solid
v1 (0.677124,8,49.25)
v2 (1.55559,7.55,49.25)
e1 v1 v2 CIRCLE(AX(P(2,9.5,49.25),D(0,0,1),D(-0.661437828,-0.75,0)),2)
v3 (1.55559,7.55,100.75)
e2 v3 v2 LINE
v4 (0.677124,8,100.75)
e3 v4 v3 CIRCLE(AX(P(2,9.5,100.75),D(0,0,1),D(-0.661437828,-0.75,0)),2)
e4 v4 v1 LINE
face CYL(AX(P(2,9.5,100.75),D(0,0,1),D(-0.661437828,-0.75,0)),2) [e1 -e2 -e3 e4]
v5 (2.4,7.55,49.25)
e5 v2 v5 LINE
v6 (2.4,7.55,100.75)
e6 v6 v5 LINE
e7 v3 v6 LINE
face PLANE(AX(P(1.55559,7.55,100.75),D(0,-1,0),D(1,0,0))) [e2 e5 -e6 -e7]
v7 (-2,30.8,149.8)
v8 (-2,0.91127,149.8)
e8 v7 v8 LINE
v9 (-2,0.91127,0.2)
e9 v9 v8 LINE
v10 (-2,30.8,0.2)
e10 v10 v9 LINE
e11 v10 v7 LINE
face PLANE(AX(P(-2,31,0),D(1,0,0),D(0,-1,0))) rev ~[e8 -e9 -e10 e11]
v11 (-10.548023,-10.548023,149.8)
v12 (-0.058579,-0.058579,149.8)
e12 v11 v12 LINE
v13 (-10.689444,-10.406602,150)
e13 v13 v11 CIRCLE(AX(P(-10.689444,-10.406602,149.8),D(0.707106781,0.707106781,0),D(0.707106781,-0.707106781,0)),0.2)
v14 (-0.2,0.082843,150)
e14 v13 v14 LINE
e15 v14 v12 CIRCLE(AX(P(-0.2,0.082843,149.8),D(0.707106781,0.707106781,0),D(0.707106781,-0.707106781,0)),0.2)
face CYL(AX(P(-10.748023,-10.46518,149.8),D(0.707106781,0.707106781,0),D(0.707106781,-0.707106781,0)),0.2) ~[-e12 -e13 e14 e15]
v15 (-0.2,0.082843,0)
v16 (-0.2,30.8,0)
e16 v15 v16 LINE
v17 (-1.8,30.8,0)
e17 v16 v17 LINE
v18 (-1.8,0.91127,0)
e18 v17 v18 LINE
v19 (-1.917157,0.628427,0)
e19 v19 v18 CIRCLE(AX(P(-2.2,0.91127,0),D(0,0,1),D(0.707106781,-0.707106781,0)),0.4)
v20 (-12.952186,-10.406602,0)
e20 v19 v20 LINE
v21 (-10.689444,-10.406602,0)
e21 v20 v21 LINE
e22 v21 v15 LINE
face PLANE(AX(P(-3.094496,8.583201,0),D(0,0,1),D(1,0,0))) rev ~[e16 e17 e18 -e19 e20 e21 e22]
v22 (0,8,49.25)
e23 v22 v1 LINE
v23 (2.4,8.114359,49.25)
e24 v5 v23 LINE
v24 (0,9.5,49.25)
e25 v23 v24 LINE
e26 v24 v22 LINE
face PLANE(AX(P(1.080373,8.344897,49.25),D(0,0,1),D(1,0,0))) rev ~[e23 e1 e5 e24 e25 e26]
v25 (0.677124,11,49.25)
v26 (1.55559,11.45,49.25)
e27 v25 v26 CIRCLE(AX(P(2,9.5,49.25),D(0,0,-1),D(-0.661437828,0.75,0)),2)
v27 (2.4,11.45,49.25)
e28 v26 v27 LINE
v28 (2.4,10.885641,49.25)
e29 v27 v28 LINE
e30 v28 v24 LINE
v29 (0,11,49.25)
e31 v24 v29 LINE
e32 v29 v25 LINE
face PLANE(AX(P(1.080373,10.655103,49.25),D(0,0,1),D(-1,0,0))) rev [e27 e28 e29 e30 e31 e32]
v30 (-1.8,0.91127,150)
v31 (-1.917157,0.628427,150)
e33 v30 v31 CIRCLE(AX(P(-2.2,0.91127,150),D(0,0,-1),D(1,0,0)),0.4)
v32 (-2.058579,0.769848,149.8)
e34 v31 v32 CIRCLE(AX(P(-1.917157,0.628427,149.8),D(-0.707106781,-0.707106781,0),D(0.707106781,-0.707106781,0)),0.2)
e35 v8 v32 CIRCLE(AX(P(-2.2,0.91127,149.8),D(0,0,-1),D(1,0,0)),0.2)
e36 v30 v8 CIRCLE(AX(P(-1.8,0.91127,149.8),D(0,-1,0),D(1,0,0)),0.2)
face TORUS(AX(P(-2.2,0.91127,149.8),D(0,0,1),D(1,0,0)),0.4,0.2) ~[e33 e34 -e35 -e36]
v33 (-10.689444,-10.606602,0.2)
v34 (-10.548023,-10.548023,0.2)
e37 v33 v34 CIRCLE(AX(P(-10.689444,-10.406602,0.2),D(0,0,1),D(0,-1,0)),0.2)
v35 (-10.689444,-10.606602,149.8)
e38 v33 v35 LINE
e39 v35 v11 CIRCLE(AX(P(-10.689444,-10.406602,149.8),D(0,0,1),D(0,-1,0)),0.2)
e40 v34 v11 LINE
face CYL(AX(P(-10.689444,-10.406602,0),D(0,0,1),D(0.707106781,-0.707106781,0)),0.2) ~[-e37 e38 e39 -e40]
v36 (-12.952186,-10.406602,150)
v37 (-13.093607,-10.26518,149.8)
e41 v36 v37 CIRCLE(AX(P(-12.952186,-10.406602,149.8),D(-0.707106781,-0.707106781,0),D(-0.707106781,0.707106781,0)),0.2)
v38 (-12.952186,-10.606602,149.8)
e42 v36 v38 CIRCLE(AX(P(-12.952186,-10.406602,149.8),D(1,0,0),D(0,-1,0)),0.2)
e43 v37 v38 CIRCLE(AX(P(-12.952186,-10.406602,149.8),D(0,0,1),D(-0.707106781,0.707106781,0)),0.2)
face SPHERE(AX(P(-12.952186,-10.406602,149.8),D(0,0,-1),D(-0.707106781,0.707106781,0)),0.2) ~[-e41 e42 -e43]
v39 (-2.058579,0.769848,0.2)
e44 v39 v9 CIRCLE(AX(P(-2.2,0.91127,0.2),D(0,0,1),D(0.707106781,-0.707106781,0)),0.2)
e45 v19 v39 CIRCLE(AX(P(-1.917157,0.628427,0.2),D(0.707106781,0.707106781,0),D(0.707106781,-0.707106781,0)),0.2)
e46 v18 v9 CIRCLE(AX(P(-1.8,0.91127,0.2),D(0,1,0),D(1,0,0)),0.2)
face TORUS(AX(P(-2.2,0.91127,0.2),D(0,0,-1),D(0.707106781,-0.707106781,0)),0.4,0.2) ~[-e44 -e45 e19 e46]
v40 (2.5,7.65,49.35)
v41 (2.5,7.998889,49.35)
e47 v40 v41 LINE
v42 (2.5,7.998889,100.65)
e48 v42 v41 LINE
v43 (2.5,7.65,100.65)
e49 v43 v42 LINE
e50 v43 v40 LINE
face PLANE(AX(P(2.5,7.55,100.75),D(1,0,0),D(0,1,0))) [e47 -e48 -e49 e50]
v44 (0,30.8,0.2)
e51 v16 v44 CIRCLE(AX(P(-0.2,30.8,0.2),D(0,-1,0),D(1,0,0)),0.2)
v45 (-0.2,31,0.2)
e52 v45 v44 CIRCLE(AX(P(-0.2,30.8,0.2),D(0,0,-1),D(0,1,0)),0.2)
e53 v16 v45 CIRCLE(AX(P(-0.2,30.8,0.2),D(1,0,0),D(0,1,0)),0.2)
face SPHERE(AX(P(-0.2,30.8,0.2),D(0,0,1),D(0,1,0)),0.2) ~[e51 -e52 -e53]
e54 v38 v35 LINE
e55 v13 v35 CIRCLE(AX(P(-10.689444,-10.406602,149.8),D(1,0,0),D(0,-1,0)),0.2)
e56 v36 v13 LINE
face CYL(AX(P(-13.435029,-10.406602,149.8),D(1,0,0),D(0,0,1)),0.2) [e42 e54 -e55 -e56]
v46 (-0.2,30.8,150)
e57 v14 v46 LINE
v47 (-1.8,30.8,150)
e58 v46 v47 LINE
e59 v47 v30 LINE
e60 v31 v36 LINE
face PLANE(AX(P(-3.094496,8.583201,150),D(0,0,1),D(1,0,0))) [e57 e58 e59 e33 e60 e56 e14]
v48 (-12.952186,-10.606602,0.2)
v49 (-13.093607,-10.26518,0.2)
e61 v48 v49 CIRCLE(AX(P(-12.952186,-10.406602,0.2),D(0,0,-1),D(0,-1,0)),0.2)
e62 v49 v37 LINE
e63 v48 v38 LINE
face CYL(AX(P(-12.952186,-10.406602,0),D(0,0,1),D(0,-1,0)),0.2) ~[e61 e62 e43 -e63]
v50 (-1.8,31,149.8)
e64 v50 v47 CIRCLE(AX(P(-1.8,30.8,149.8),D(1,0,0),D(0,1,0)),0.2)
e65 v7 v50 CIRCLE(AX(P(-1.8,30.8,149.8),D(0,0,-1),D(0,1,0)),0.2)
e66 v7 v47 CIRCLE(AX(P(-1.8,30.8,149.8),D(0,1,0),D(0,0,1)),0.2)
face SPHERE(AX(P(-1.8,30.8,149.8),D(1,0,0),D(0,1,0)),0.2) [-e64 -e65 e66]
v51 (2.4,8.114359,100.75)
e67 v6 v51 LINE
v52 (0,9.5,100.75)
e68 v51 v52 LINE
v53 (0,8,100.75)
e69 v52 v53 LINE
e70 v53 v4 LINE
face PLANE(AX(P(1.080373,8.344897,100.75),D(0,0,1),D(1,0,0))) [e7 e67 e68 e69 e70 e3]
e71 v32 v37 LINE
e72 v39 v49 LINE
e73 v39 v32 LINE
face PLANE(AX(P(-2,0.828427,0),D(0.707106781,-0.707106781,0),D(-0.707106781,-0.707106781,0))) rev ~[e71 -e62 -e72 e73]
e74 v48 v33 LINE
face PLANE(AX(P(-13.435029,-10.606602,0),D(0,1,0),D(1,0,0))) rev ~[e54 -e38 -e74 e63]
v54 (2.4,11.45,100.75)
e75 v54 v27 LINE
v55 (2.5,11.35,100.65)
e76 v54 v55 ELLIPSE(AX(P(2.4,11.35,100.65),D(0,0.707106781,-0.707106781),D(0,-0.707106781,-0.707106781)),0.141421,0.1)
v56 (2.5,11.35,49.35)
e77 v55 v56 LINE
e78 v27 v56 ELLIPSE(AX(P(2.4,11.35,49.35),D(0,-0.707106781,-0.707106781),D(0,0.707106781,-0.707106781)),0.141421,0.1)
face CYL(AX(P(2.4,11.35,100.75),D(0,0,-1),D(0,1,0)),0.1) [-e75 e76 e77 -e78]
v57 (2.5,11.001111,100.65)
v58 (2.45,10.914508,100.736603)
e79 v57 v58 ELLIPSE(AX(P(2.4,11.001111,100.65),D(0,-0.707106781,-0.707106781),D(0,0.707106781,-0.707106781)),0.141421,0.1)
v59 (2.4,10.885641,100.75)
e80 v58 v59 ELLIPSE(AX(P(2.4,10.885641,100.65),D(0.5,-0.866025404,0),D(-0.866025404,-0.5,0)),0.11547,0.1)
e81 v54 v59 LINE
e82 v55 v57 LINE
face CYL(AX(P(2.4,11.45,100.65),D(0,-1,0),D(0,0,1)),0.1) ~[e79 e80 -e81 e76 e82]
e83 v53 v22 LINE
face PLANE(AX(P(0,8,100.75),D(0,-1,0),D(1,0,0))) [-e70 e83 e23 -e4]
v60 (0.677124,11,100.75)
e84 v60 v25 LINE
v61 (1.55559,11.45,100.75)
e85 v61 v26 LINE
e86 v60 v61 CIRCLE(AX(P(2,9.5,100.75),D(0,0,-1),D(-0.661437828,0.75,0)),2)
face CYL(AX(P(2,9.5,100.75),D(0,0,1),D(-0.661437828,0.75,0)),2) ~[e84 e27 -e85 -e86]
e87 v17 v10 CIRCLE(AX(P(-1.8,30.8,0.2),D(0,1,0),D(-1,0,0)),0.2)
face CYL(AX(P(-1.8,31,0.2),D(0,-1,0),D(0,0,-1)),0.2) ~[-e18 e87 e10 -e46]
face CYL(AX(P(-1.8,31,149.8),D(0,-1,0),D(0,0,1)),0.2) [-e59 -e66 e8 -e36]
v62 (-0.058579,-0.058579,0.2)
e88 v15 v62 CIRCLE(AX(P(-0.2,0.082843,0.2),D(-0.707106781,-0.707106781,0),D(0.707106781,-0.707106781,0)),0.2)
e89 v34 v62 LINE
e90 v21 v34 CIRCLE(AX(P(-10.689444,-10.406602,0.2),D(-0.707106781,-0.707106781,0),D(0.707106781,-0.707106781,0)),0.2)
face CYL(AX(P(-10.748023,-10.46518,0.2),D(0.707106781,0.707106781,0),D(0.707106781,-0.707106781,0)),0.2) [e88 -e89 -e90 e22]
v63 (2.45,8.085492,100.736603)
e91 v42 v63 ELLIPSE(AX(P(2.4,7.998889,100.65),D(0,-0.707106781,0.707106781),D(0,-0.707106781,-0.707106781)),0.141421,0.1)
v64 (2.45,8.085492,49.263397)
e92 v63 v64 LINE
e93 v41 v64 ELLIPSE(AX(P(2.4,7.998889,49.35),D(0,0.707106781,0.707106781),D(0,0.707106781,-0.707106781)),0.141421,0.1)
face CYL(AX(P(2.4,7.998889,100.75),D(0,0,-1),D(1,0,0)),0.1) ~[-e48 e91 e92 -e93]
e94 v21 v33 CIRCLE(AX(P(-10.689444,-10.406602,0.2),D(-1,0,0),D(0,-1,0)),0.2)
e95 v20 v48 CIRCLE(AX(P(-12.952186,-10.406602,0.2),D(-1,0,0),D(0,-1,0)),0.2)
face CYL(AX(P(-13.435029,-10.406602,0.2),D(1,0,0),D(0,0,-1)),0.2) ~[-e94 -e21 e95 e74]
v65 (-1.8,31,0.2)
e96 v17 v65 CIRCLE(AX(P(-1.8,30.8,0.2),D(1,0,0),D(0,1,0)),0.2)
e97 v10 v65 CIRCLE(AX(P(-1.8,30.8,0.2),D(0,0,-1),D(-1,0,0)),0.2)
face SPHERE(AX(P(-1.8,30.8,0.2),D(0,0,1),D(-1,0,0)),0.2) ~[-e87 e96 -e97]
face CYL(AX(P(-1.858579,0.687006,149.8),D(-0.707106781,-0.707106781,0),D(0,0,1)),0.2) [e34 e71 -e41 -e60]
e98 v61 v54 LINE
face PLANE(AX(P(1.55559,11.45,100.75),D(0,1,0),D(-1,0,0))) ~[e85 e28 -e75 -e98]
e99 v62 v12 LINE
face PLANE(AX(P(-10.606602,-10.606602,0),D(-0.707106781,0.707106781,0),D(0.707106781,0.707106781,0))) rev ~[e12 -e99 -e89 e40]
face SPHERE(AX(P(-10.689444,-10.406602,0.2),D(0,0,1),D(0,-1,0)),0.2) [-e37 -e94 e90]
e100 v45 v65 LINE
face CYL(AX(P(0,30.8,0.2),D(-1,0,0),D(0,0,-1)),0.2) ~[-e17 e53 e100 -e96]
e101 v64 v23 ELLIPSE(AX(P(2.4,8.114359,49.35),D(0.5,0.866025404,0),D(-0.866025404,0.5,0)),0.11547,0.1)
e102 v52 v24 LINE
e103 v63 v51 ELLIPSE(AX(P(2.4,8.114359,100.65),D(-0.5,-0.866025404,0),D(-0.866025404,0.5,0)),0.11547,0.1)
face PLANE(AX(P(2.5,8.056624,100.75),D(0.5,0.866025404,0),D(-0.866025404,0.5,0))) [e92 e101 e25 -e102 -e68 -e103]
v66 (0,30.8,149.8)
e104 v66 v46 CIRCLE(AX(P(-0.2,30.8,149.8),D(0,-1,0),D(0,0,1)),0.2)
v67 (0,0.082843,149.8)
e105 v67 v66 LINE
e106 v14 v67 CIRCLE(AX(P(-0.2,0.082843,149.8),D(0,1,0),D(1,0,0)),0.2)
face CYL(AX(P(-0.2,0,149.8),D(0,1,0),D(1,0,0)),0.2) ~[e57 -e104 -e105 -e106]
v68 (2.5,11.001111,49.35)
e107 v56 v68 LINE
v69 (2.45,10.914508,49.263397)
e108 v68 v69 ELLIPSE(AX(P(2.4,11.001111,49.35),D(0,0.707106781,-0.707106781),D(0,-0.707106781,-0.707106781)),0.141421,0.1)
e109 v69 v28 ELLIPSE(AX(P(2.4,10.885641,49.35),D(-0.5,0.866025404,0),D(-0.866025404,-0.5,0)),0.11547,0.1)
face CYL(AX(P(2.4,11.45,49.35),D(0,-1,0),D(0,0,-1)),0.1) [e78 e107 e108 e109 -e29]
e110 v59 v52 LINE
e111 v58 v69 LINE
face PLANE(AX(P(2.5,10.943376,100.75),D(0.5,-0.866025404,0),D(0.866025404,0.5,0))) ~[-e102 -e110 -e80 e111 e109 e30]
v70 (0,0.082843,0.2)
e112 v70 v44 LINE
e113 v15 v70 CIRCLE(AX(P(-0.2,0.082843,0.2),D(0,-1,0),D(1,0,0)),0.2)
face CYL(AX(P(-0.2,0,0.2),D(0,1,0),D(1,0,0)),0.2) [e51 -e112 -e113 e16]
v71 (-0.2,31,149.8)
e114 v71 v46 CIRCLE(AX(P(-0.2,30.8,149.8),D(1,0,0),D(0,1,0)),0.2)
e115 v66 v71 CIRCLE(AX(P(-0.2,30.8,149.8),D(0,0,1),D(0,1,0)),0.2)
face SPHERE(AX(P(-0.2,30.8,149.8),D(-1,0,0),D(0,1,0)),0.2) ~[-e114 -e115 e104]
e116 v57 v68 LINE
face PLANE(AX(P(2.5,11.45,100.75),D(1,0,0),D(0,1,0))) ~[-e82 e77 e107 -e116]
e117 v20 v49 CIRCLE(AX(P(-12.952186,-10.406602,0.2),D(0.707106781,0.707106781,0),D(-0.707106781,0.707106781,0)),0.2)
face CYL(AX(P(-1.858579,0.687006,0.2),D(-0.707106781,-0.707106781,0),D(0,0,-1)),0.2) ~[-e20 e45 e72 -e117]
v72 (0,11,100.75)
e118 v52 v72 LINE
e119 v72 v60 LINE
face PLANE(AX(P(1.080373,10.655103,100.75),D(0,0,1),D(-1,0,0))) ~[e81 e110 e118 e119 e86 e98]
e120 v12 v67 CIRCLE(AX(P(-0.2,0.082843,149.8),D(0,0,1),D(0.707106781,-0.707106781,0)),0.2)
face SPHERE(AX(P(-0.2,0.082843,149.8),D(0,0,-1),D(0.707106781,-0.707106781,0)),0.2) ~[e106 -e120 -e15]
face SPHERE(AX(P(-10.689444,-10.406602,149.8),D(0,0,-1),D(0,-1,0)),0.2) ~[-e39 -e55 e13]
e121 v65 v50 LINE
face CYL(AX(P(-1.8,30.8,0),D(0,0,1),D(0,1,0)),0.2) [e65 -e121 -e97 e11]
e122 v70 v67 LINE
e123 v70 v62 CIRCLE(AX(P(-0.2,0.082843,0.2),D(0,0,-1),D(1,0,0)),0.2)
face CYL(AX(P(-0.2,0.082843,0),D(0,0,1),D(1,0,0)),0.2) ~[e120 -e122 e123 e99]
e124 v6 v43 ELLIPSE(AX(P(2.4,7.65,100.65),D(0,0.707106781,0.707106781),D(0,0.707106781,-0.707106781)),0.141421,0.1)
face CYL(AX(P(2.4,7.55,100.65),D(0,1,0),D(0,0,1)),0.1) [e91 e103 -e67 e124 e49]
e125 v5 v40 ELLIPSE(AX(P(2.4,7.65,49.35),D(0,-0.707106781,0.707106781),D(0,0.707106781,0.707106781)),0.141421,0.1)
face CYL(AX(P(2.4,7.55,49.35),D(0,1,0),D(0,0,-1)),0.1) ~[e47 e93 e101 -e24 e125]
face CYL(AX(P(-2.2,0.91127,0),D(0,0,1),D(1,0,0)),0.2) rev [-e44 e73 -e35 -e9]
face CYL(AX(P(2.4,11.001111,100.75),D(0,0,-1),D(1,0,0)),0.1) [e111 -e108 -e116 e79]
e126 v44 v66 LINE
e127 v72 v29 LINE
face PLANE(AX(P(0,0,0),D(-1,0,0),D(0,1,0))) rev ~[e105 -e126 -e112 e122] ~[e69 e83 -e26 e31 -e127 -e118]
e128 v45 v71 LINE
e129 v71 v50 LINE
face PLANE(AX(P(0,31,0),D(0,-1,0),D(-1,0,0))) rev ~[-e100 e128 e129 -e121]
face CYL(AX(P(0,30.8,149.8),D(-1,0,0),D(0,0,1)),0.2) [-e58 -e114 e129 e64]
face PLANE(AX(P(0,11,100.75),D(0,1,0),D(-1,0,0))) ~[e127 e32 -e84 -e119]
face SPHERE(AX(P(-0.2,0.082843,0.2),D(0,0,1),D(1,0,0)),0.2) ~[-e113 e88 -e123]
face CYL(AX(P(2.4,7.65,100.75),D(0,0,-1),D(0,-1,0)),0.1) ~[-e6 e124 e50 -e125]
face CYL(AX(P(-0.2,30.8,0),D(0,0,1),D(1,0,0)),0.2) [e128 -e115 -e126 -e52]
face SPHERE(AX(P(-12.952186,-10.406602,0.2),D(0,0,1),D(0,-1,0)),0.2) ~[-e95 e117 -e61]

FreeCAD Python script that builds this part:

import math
import FreeCAD as App
import Part
import Sketcher
from FreeCAD import Vector
Q = App.Units.Quantity


def edges_at(feature, points):
    """Names of the edges that pass closest to the given points."""
    edges = feature.Shape.Edges
    near = lambda p: min(range(len(edges)), key=lambda i: edges[i].distToShape(Part.Vertex(*p))[0])
    return sorted({f"Edge{near(p) + 1}" for p in points})


def add_polygon(sketch, points):
    """Adds a closed chain of lines whose ends are joined by coincident constraints."""
    first, n = sketch.GeometryCount, len(points)
    for a, b in zip(points, points[1:] + points[:1]):
        sketch.addGeometry(Part.LineSegment(App.Vector(*a, 0), App.Vector(*b, 0)), False)
    for i in range(n):
        sketch.addConstraint(Sketcher.Constraint("Coincident", first + i, 2, first + (i + 1) % n, 1))

doc = App.newDocument("Part")
params = doc.addObject("Spreadsheet::Sheet", "Params")
for row, (alias, value) in enumerate([
    ("sketch1_width", "2 mm"),
    ("sketch1_height", "31 mm"),
    ("sketch1_length", "15 mm"),
    ("pad1_length", "150 mm"),
    ("sketch2_radius", "2 mm"),
    ("sketch2_height", "1.5 mm"),
    ("pad2_length", "51.5 mm"),
    ("fillet_radius", "0.1 mm"),
    ("fillet2_radius", "0.2 mm"),
], start=1):
    params.set(f"A{row}", alias)
    params.set(f"B{row}", "=" + value)
    params.setAlias(f"B{row}", alias)

body = doc.addObject("PartDesign::Body", "Body")

# Sketch on XY plane
sketch1 = body.newObject("Sketcher::SketchObject", "Sketch")
sketch1.AttachmentSupport = (doc.getObject("XY_Plane"), [""])
sketch1.MapMode = "FlatFace"
add_polygon(sketch1, [(0, 0), (0, 31), (-2, 31), (-2, 0.828427), (-13.435029, -10.606602), (-10.606602, -10.606602)])  # lines 0-5
sketch1.addConstraint([
    Sketcher.Constraint("Vertical", 0),
    Sketcher.Constraint("Horizontal", 1),
    Sketcher.Constraint("Vertical", 2),
    Sketcher.Constraint("Horizontal", 4),
    Sketcher.Constraint("Coincident", 5, 2, -1, 1),
    Sketcher.Constraint("Parallel", 3, 5),
    Sketcher.Constraint("DistanceX", 1, 2, 1, 1, 2.0),
    Sketcher.Constraint("DistanceY", 0, 1, 0, 2, 31.0),
    Sketcher.Constraint("Angle", 3, Q("-135 deg")),
    Sketcher.Constraint("Distance", 5, 15.0),
    Sketcher.Constraint("DistanceX", 4, 1, 4, 2, 2.828427),
])
sketch1.setExpression("Constraints[12]", "Params.sketch1_width")
sketch1.setExpression("Constraints[13]", "Params.sketch1_height")
sketch1.setExpression("Constraints[15]", "Params.sketch1_length")
pad1 = body.newObject("PartDesign::Pad", "Pad")
pad1.Profile = sketch1
pad1.setExpression("Length", "Params.pad1_length")

# Sketch on XY plane
sketch2 = body.newObject("Sketcher::SketchObject", "Sketch001")
sketch2.AttachmentSupport = (doc.getObject("XY_Plane"), [""])
sketch2.MapMode = "FlatFace"
sketch2.AttachmentOffset = App.Placement(Vector(0, 0, 100.75), App.Rotation())
sketch2.addGeometry([
    Part.LineSegment(Vector(0, 9.5, 0), Vector(0, 8, 0)),  # 0
    Part.LineSegment(Vector(0, 8, 0), Vector(0.677124, 8, 0)),  # 1
    Part.ArcOfCircle(Part.Circle(Vector(2, 9.5, 0), Vector(0, 0, 1), 2), math.radians(-131.409622), math.radians(-102.838568)),  # 2
    Part.LineSegment(Vector(1.55559, 7.55, 0), Vector(2.5, 7.55, 0)),  # 3
    Part.LineSegment(Vector(2.5, 7.55, 0), Vector(2.5, 8.056624, 0)),  # 4
    Part.LineSegment(Vector(2.5, 8.056624, 0), Vector(0, 9.5, 0)),  # 5
], False)
sketch2.addConstraint([
    Sketcher.Constraint("Coincident", 0, 2, 1, 1),
    Sketcher.Constraint("Coincident", 1, 2, 2, 1),
    Sketcher.Constraint("Coincident", 2, 2, 3, 1),
    Sketcher.Constraint("Coincident", 3, 2, 4, 1),
    Sketcher.Constraint("Coincident", 4, 2, 5, 1),
    Sketcher.Constraint("Coincident", 5, 2, 0, 1),
    Sketcher.Constraint("Vertical", 0),
    Sketcher.Constraint("Horizontal", 1),
    Sketcher.Constraint("Horizontal", 3),
    Sketcher.Constraint("Vertical", 4),
    Sketcher.Constraint("PointOnObject", 0, 2, -2),
    Sketcher.Constraint("Horizontal", 2, 3, 5, 2),
    Sketcher.Constraint("Radius", 2, 2.0),
    Sketcher.Constraint("Angle", 5, Q("150 deg")),
    Sketcher.Constraint("DistanceY", 0, 2, 0, 1, 1.5),
    Sketcher.Constraint("DistanceX", -1, 1, 2, 3, 2.0),
    Sketcher.Constraint("DistanceY", -1, 1, 0, 2, 8.0),
    Sketcher.Constraint("DistanceX", -1, 1, 3, 2, 2.5),
    Sketcher.Constraint("DistanceY", -1, 1, 2, 2, 7.55),
])
sketch2.setExpression("Constraints[12]", "Params.sketch2_radius")
sketch2.setExpression("Constraints[14]", "Params.sketch2_height")
pad2 = body.newObject("PartDesign::Pad", "Pad001")
pad2.Profile = sketch2
pad2.setExpression("Length", "Params.pad2_length")
pad2.Reversed = True
doc.recompute()

datumplane = body.newObject("PartDesign::Plane", "DatumPlane")
datumplane.AttachmentSupport = (doc.getObject("XZ_Plane"), [""])
datumplane.MapMode = "FlatFace"
datumplane.AttachmentOffset = App.Placement(Vector(0, 0, -9.5), App.Rotation())
mirrored = body.newObject("PartDesign::Mirrored", "Mirrored")
mirrored.Originals = [pad2]
mirrored.MirrorPlane = (datumplane, [""])
body.Tip = mirrored
doc.recompute()

fillet = body.newObject("PartDesign::Fillet", "Fillet")
fillet.Base = (mirrored, edges_at(mirrored, [
    (2.5, 7.803, 49.25),
    (2.5, 8.057, 75),
    (2.5, 7.55, 75),
    (2.5, 7.803, 100.75),
    (2.5, 10.943, 75),
    (2.5, 11.197, 100.75),
    (2.5, 11.45, 75),
    (2.5, 11.197, 49.25),
]))
fillet.setExpression("Radius", "Params.fillet_radius")
doc.recompute()

fillet2 = body.newObject("PartDesign::Fillet", "Fillet001")
fillet2.Base = (fillet, edges_at(fillet, [
    (-1, 31, 150),
    (-10.607, -10.607, 75),
    (-13.435, -10.607, 75),
    (-2, 0.828, 75),
    (-2, 31, 75),
    (0, 31, 75),
    (0, 0, 75),
    (-2, 15.914, 150),
    (-7.718, -4.889, 150),
    (-12.021, -10.607, 150),
    (-5.303, -5.303, 150),
    (-12.021, -10.607, 0),
    (-7.718, -4.889, 0),
    (-2, 15.914, 0),
    (0, 15.5, 150),
    (-1, 31, 0),
    (0, 15.5, 0),
    (-5.303, -5.303, 0),
]))
fillet2.setExpression("Radius", "Params.fillet2_radius")

doc.recompute()
